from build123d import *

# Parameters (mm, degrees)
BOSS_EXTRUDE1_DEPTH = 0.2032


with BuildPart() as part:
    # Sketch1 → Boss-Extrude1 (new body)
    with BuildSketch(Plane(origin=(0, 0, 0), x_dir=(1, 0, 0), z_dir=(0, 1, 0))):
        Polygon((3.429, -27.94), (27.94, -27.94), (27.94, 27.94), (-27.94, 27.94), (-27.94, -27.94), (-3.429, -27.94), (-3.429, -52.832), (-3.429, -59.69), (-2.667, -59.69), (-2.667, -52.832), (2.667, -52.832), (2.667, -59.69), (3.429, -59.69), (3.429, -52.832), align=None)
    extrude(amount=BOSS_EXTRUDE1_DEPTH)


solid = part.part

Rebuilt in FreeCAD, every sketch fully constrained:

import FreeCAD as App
import Part
import Sketcher

V = App.Vector
Q = App.Units.Quantity


def add_polygon(sketch, points):
    """Adds a closed chain of lines whose ends are joined by coincident constraints."""
    first, n = sketch.GeometryCount, len(points)
    for a, b in zip(points, points[1:] + points[:1]):
        sketch.addGeometry(Part.LineSegment(App.Vector(*a, 0), App.Vector(*b, 0)), False)
    for i in range(n):
        sketch.addConstraint(Sketcher.Constraint("Coincident", first + i, 2, first + (i + 1) % n, 1))

doc = App.newDocument("Part")
body = doc.addObject("PartDesign::Body", "Body")

# Sketch on XZ plane
sketch1 = doc.addObject("Sketcher::SketchObject", "Sketch")
body.addObject(sketch1)
sketch1.AttachmentSupport = (doc.XZ_Plane, [""])
sketch1.MapMode = "FlatFace"
add_polygon(sketch1, [(3.429, 27.94), (27.94, 27.94), (27.94, -27.94), (-27.94, -27.94), (-27.94, 27.94), (-3.429, 27.94), (-3.429, 59.69), (-2.667, 59.69), (-2.667, 52.832), (2.667, 52.832), (2.667, 59.69), (3.429, 59.69)])  # lines 0-11
sketch1.addConstraint(Sketcher.Constraint("Horizontal", 0))
sketch1.addConstraint(Sketcher.Constraint("Vertical", 1))
sketch1.addConstraint(Sketcher.Constraint("Horizontal", 2))
sketch1.addConstraint(Sketcher.Constraint("Vertical", 3))
sketch1.addConstraint(Sketcher.Constraint("Horizontal", 4))
sketch1.addConstraint(Sketcher.Constraint("Vertical", 5))
sketch1.addConstraint(Sketcher.Constraint("Horizontal", 6))
sketch1.addConstraint(Sketcher.Constraint("Vertical", 7))
sketch1.addConstraint(Sketcher.Constraint("Horizontal", 8))
sketch1.addConstraint(Sketcher.Constraint("Vertical", 9))
sketch1.addConstraint(Sketcher.Constraint("Horizontal", 10))
sketch1.addConstraint(Sketcher.Constraint("Vertical", 11))
sketch1.addConstraint(Sketcher.Constraint("Symmetric", 0, 2, 2, 2, -1, 1))
sketch1.addConstraint(Sketcher.Constraint("Symmetric", 6, 2, 9, 2, -2))
sketch1.addConstraint(Sketcher.Constraint("Symmetric", 4, 2, 11, 2, -2))
sketch1.addConstraint(Sketcher.Constraint("Equal", 2, 1))
sketch1.addConstraint(Sketcher.Constraint("DistanceX", 2, 2, 2, 1, Q("2.2 in")))
sketch1.addConstraint(Sketcher.Constraint("DistanceX", 6, 1, 6, 2, Q("0.03 in")))
sketch1.addConstraint(Sketcher.Constraint("DistanceX", 8, 1, 8, 2, Q("0.21 in")))
sketch1.addConstraint(Sketcher.Constraint("DistanceY", 5, 1, 5, 2, Q("1.25 in")))
sketch1.addConstraint(Sketcher.Constraint("DistanceY", 7, 2, 7, 1, Q("0.27 in")))
pad1 = doc.addObject("PartDesign::Pad", "Pad")
body.addObject(pad1)
pad1.Profile = sketch1
pad1.Length = Q("0.008 in")
pad1.Reversed = True

doc.recompute()
